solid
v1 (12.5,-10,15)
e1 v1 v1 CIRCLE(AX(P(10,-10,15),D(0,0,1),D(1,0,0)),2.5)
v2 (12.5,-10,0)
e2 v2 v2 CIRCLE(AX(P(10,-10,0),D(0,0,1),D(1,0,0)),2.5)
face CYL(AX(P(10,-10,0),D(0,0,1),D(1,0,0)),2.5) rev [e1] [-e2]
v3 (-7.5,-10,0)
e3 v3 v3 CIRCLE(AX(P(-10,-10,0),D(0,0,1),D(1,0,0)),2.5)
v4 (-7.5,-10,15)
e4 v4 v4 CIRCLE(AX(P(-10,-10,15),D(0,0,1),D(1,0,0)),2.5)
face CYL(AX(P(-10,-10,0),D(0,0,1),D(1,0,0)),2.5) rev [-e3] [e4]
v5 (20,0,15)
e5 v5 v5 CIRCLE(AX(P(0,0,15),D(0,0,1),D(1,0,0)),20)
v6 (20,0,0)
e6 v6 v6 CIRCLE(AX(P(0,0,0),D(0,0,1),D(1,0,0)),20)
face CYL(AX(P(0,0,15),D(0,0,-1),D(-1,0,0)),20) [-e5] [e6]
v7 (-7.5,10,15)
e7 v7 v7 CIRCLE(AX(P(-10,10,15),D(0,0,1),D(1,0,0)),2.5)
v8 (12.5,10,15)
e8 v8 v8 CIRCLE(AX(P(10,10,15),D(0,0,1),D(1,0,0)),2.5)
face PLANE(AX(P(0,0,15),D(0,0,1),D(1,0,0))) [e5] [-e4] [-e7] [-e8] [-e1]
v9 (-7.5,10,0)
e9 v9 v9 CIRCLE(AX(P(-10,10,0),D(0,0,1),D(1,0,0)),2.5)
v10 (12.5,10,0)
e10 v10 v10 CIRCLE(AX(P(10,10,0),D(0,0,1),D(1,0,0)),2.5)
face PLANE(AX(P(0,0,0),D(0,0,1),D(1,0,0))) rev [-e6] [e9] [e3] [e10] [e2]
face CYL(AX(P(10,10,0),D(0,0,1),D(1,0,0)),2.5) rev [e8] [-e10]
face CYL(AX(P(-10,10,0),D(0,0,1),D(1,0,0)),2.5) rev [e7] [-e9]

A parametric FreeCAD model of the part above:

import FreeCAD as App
import Part
import Sketcher

V = App.Vector
Q = App.Units.Quantity

doc = App.newDocument("Part")
body = doc.addObject("PartDesign::Body", "Body")

sketch1 = body.newObject("Sketcher::SketchObject", "Sketch")
sketch1.AttachmentSupport = (doc.getObject("XY_Plane"), [""])
sketch1.MapMode = "FlatFace"
sketch1.addGeometry(Part.Circle(V(0, 0, 0), V(0, 0, 1), 20), False)
sketch1.addConstraint(Sketcher.Constraint("Coincident", 0, 3, -1, 1))
sketch1.addConstraint(Sketcher.Constraint("Diameter", 0, Q("40 mm")))
pad1 = body.newObject("PartDesign::Pad", "Pad")
pad1.Profile = sketch1
pad1.Length = 15

sketch2 = body.newObject("Sketcher::SketchObject", "Sketch001")
sketch2.AttachmentSupport = (doc.getObject("XY_Plane"), [""])
sketch2.MapMode = "FlatFace"
sketch2.AttachmentOffset = App.Placement(V(0, 0, 15), App.Rotation())
sketch2.addGeometry(Part.Circle(V(-10, 10, 0), V(0, 0, 1), 2.5), False)
sketch2.addGeometry(Part.Circle(V(10, 10, 0), V(0, 0, 1), 2.5), False)
sketch2.addGeometry(Part.Circle(V(10, -10, 0), V(0, 0, 1), 2.5), False)
sketch2.addGeometry(Part.Circle(V(-10, -10, 0), V(0, 0, 1), 2.5), False)
sketch2.addConstraint(Sketcher.Constraint("Equal", 0, 1))
sketch2.addConstraint(Sketcher.Constraint("Equal", 1, 2))
sketch2.addConstraint(Sketcher.Constraint("Equal", 2, 3))
sketch2.addConstraint(Sketcher.Constraint("Symmetric", 0, 3, 2, 3, -1, 1))
sketch2.addConstraint(Sketcher.Constraint("Symmetric", 1, 3, 3, 3, -1, 1))
sketch2.addConstraint(Sketcher.Constraint("Symmetric", 0, 3, 1, 3, -2))
sketch2.addConstraint(Sketcher.Constraint("Diameter", 0, Q("5 mm")))
sketch2.addConstraint(Sketcher.Constraint("DistanceX", 0, 3, -1, 1, Q("10 mm")))
sketch2.addConstraint(Sketcher.Constraint("DistanceY", -1, 1, 0, 3, Q("10 mm")))
pocket1 = body.newObject("PartDesign::Pocket", "Pocket")
pocket1.Profile = sketch2
pocket1.Type = "ThroughAll"

doc.recompute()
